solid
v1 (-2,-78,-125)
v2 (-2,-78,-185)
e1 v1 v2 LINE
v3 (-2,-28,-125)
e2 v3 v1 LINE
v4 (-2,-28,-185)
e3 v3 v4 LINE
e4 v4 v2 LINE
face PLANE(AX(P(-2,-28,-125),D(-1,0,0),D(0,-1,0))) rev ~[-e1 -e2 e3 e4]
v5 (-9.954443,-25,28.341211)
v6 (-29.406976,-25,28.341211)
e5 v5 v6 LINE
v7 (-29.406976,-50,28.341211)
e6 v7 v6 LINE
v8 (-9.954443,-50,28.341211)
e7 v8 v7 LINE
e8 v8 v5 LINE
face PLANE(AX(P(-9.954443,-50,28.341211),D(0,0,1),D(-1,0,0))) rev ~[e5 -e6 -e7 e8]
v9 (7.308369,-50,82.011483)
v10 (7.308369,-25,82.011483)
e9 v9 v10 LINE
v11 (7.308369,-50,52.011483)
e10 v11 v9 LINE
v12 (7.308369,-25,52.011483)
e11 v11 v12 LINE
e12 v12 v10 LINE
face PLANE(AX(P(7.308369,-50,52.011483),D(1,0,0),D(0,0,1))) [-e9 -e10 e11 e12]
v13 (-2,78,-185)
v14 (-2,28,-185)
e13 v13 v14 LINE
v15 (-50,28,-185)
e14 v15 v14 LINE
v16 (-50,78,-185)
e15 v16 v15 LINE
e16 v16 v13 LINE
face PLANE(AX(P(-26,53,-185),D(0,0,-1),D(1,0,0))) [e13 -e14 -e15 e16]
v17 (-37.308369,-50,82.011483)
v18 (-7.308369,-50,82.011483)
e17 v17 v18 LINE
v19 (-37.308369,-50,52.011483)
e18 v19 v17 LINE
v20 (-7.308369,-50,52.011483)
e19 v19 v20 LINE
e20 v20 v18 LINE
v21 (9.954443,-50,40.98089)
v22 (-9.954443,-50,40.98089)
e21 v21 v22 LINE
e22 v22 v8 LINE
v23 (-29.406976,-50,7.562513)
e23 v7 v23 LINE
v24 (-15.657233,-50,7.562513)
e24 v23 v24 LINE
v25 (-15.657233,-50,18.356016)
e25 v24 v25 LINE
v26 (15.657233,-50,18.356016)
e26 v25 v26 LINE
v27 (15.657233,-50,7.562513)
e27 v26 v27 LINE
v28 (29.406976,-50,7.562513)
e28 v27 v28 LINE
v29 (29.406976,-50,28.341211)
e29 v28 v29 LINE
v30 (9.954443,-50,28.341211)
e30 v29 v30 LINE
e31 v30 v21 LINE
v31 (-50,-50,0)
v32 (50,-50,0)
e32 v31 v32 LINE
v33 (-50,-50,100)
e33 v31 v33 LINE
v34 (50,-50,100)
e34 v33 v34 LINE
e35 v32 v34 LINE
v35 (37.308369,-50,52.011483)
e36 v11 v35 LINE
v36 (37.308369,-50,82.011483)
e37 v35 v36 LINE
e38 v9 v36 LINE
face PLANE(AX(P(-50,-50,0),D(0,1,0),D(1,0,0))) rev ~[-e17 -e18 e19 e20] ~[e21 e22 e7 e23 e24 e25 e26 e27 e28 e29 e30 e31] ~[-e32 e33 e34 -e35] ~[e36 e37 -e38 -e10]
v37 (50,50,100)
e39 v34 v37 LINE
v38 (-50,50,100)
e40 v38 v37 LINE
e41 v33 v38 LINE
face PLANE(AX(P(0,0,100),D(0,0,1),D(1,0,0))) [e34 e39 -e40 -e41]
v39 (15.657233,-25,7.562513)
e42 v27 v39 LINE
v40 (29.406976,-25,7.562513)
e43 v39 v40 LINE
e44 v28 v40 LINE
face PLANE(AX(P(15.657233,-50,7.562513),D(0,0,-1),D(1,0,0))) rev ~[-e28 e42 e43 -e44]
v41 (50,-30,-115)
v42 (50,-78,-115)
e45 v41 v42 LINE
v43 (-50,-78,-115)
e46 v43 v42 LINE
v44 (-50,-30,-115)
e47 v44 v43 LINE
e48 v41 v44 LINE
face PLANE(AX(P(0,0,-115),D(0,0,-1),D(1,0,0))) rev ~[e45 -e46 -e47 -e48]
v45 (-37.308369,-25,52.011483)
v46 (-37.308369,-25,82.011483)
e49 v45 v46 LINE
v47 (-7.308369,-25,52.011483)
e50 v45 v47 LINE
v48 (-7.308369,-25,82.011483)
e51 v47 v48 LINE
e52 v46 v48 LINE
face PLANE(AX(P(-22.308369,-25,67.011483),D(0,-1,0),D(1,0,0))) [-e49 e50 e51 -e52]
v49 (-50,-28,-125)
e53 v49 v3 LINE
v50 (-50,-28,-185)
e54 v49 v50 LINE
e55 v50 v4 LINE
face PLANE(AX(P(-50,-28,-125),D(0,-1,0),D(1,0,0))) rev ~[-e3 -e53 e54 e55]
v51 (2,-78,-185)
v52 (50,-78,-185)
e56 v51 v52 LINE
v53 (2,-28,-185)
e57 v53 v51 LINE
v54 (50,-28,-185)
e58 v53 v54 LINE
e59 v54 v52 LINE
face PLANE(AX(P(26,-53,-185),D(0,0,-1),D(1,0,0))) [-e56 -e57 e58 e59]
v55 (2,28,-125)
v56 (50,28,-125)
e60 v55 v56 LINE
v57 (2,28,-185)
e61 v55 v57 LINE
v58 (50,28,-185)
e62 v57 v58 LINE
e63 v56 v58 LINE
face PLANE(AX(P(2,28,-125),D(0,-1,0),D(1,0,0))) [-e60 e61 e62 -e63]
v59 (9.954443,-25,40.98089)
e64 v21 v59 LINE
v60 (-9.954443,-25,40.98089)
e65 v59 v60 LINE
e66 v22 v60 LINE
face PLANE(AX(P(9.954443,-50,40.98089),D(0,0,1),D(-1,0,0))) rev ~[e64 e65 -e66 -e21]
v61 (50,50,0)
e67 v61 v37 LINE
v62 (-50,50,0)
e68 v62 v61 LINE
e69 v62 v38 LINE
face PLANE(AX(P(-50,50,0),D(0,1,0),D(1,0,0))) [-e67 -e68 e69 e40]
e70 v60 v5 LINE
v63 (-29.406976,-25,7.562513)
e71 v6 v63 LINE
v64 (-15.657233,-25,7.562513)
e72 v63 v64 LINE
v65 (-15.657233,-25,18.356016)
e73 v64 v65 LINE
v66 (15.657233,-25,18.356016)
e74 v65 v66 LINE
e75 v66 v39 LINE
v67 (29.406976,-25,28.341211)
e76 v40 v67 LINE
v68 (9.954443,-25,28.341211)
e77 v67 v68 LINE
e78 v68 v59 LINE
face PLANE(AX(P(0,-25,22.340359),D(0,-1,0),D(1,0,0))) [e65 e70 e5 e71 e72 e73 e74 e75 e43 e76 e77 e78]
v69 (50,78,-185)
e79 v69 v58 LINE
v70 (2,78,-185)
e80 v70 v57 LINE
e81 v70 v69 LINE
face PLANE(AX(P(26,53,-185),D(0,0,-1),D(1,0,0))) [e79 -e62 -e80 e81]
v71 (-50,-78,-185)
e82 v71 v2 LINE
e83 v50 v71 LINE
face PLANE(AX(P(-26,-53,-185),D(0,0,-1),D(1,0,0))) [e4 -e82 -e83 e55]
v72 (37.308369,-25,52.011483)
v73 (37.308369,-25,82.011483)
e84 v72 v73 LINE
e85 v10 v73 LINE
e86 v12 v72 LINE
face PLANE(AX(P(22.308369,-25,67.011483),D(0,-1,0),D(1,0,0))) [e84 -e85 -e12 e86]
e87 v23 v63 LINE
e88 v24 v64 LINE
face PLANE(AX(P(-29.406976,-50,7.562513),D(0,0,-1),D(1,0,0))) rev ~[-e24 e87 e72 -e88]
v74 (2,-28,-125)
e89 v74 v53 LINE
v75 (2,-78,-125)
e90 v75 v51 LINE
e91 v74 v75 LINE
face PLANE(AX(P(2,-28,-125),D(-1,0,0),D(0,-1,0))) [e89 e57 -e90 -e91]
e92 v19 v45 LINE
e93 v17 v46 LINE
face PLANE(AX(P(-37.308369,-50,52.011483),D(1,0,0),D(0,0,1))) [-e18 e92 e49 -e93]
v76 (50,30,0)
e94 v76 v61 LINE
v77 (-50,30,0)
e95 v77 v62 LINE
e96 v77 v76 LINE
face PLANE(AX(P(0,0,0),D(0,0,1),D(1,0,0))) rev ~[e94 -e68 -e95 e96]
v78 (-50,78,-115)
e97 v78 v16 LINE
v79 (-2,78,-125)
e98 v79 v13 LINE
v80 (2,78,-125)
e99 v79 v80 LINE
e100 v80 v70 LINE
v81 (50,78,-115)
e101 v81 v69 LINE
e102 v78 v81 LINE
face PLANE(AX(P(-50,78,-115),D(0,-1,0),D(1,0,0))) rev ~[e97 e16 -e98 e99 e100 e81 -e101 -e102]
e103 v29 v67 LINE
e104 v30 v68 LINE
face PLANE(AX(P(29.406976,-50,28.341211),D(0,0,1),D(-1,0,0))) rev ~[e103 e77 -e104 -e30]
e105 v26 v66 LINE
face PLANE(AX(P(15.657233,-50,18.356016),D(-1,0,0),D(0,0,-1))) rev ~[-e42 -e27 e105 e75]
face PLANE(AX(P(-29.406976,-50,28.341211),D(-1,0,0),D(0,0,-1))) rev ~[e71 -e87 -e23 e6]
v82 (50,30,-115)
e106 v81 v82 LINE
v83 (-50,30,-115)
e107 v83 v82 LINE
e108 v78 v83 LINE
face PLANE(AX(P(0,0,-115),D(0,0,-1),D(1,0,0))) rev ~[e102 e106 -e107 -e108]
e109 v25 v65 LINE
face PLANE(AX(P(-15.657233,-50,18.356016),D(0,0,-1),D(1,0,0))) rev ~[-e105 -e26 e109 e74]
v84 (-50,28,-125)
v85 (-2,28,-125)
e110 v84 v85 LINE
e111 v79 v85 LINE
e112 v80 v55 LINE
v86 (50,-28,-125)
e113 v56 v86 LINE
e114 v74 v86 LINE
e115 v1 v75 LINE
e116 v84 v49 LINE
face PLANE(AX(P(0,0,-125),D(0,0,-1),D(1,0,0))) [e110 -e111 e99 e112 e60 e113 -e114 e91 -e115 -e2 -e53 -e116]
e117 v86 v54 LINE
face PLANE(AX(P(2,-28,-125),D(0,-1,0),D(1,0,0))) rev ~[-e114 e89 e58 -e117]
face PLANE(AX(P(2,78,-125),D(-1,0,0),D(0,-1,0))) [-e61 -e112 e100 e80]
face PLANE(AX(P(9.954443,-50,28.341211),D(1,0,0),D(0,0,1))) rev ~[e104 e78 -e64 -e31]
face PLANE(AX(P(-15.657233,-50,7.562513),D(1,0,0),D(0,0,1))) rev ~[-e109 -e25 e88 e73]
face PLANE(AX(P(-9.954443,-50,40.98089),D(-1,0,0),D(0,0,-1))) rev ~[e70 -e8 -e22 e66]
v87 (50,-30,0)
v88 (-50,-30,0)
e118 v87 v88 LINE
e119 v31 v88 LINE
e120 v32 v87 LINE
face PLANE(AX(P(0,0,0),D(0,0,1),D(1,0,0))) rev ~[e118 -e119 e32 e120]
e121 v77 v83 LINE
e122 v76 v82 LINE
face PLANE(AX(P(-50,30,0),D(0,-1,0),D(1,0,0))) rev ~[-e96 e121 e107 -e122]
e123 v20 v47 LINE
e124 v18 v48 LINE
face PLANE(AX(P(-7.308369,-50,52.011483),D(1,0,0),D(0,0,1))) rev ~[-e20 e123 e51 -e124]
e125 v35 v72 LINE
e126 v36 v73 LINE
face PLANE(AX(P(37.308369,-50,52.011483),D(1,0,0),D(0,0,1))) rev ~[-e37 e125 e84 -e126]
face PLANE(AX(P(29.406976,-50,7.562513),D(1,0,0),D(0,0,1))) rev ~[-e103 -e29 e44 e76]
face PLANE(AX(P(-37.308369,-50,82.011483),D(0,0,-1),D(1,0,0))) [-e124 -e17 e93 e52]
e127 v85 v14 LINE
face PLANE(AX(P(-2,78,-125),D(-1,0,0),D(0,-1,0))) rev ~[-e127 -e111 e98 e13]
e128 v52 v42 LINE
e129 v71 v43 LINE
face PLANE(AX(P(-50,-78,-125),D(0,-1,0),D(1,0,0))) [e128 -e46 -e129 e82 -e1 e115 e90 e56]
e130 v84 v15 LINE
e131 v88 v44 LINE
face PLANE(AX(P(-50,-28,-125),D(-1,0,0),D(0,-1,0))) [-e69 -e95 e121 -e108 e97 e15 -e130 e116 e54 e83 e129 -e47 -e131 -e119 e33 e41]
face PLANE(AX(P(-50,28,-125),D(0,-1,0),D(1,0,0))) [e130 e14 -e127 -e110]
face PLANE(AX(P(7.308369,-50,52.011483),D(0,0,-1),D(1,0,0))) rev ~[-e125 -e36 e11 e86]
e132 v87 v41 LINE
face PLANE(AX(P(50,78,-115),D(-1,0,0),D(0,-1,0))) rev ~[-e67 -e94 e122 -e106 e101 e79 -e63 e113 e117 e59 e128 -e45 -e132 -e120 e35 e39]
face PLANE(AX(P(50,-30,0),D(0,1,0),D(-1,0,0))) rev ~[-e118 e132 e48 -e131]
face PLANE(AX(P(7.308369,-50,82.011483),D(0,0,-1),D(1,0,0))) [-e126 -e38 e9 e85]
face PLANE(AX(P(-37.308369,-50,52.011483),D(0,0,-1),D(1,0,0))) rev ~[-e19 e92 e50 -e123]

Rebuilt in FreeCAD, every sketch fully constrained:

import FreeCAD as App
import Part
import Sketcher
from FreeCAD import Vector

doc = App.newDocument("Part")
body = doc.addObject("PartDesign::Body", "Body")

sketch1 = body.newObject("Sketcher::SketchObject", "Sketch")
sketch1.AttachmentSupport = (doc.getObject("XY_Plane"), [""])
sketch1.MapMode = "FlatFace"
sketch1.addGeometry(Part.LineSegment(Vector(-50, 50, 0), Vector(-50, -50, 0)), False)
sketch1.addGeometry(Part.LineSegment(Vector(-50, -50, 0), Vector(50, -50, 0)), False)
sketch1.addGeometry(Part.LineSegment(Vector(50, -50, 0), Vector(50, 50, 0)), False)
sketch1.addGeometry(Part.LineSegment(Vector(50, 50, 0), Vector(-50, 50, 0)), False)
sketch1.addConstraint(Sketcher.Constraint("Coincident", 0, 2, 1, 1))
sketch1.addConstraint(Sketcher.Constraint("Coincident", 1, 2, 2, 1))
sketch1.addConstraint(Sketcher.Constraint("Coincident", 2, 2, 3, 1))
sketch1.addConstraint(Sketcher.Constraint("Coincident", 3, 2, 0, 1))
sketch1.addConstraint(Sketcher.Constraint("Vertical", 0))
sketch1.addConstraint(Sketcher.Constraint("Horizontal", 1))
sketch1.addConstraint(Sketcher.Constraint("Vertical", 2))
sketch1.addConstraint(Sketcher.Constraint("Horizontal", 3))
sketch1.addConstraint(Sketcher.Constraint("Symmetric", 0, 2, 2, 2, -1, 1))
sketch1.addConstraint(Sketcher.Constraint("Equal", 3, 0))
sketch1.addConstraint(Sketcher.Constraint("DistanceX", 1, 1, 1, 2, 100.0))
pad1 = body.newObject("PartDesign::Pad", "Pad")
pad1.Profile = sketch1
pad1.Length = 100

sketch2 = body.newObject("Sketcher::SketchObject", "Sketch001")
sketch2.AttachmentSupport = (doc.getObject("XZ_Plane"), [""])
sketch2.MapMode = "FlatFace"
sketch2.AttachmentOffset = App.Placement(Vector(0, 0, 50), App.Rotation())
sketch2.addGeometry(Part.LineSegment(Vector(-37, 82, 0), Vector(-37, 52, 0)), False)
sketch2.addGeometry(Part.LineSegment(Vector(-37, 52, 0), Vector(-7, 52, 0)), False)
sketch2.addGeometry(Part.LineSegment(Vector(-7, 52, 0), Vector(-7, 82, 0)), False)
sketch2.addGeometry(Part.LineSegment(Vector(-7, 82, 0), Vector(-37, 82, 0)), False)
sketch2.addGeometry(Part.LineSegment(Vector(7, 82, 0), Vector(7, 52, 0)), False)
sketch2.addGeometry(Part.LineSegment(Vector(7, 52, 0), Vector(37, 52, 0)), False)
sketch2.addGeometry(Part.LineSegment(Vector(37, 52, 0), Vector(37, 82, 0)), False)
sketch2.addGeometry(Part.LineSegment(Vector(37, 82, 0), Vector(7, 82, 0)), False)
sketch2.addGeometry(Part.LineSegment(Vector(10, 41, 0), Vector(-10, 41, 0)), False)
sketch2.addGeometry(Part.LineSegment(Vector(-10, 41, 0), Vector(-10, 28, 0)), False)
sketch2.addGeometry(Part.LineSegment(Vector(-10, 28, 0), Vector(-29, 28, 0)), False)
sketch2.addGeometry(Part.LineSegment(Vector(-29, 28, 0), Vector(-29, 8, 0)), False)
sketch2.addGeometry(Part.LineSegment(Vector(-29, 8, 0), Vector(-16, 8, 0)), False)
sketch2.addGeometry(Part.LineSegment(Vector(-16, 8, 0), Vector(-16, 18, 0)), False)
sketch2.addGeometry(Part.LineSegment(Vector(-16, 18, 0), Vector(16, 18, 0)), False)
sketch2.addGeometry(Part.LineSegment(Vector(16, 18, 0), Vector(16, 8, 0)), False)
sketch2.addGeometry(Part.LineSegment(Vector(16, 8, 0), Vector(29, 8, 0)), False)
sketch2.addGeometry(Part.LineSegment(Vector(29, 8, 0), Vector(29, 28, 0)), False)
sketch2.addGeometry(Part.LineSegment(Vector(29, 28, 0), Vector(10, 28, 0)), False)
sketch2.addGeometry(Part.LineSegment(Vector(10, 28, 0), Vector(10, 41, 0)), False)
sketch2.addConstraint(Sketcher.Constraint("Coincident", 0, 2, 1, 1))
sketch2.addConstraint(Sketcher.Constraint("Coincident", 1, 2, 2, 1))
sketch2.addConstraint(Sketcher.Constraint("Coincident", 2, 2, 3, 1))
sketch2.addConstraint(Sketcher.Constraint("Coincident", 3, 2, 0, 1))
sketch2.addConstraint(Sketcher.Constraint("Coincident", 4, 2, 5, 1))
sketch2.addConstraint(Sketcher.Constraint("Coincident", 5, 2, 6, 1))
sketch2.addConstraint(Sketcher.Constraint("Coincident", 6, 2, 7, 1))
sketch2.addConstraint(Sketcher.Constraint("Coincident", 7, 2, 4, 1))
sketch2.addConstraint(Sketcher.Constraint("Coincident", 8, 2, 9, 1))
sketch2.addConstraint(Sketcher.Constraint("Coincident", 9, 2, 10, 1))
sketch2.addConstraint(Sketcher.Constraint("Coincident", 10, 2, 11, 1))
sketch2.addConstraint(Sketcher.Constraint("Coincident", 11, 2, 12, 1))
sketch2.addConstraint(Sketcher.Constraint("Coincident", 12, 2, 13, 1))
sketch2.addConstraint(Sketcher.Constraint("Coincident", 13, 2, 14, 1))
sketch2.addConstraint(Sketcher.Constraint("Coincident", 14, 2, 15, 1))
sketch2.addConstraint(Sketcher.Constraint("Coincident", 15, 2, 16, 1))
sketch2.addConstraint(Sketcher.Constraint("Coincident", 16, 2, 17, 1))
sketch2.addConstraint(Sketcher.Constraint("Coincident", 17, 2, 18, 1))
sketch2.addConstraint(Sketcher.Constraint("Coincident", 18, 2, 19, 1))
sketch2.addConstraint(Sketcher.Constraint("Coincident", 19, 2, 8, 1))
sketch2.addConstraint(Sketcher.Constraint("Vertical", 0))
sketch2.addConstraint(Sketcher.Constraint("Horizontal", 1))
sketch2.addConstraint(Sketcher.Constraint("Vertical", 2))
sketch2.addConstraint(Sketcher.Constraint("Horizontal", 3))
sketch2.addConstraint(Sketcher.Constraint("Vertical", 4))
sketch2.addConstraint(Sketcher.Constraint("Horizontal", 5))
sketch2.addConstraint(Sketcher.Constraint("Vertical", 6))
sketch2.addConstraint(Sketcher.Constraint("Horizontal", 7))
sketch2.addConstraint(Sketcher.Constraint("Horizontal", 8))
sketch2.addConstraint(Sketcher.Constraint("Vertical", 9))
sketch2.addConstraint(Sketcher.Constraint("Horizontal", 10))
sketch2.addConstraint(Sketcher.Constraint("Vertical", 11))
sketch2.addConstraint(Sketcher.Constraint("Horizontal", 12))
sketch2.addConstraint(Sketcher.Constraint("Vertical", 13))
sketch2.addConstraint(Sketcher.Constraint("Horizontal", 14))
sketch2.addConstraint(Sketcher.Constraint("Vertical", 15))
sketch2.addConstraint(Sketcher.Constraint("Horizontal", 16))
sketch2.addConstraint(Sketcher.Constraint("Vertical", 17))
sketch2.addConstraint(Sketcher.Constraint("Horizontal", 18))
sketch2.addConstraint(Sketcher.Constraint("Vertical", 19))
sketch2.addConstraint(Sketcher.Constraint("Symmetric", 1, 2, 4, 2, -2))
sketch2.addConstraint(Sketcher.Constraint("Symmetric", 3, 2, 6, 2, -2))
sketch2.addConstraint(Sketcher.Constraint("Symmetric", 12, 2, 15, 2, -2))
sketch2.addConstraint(Sketcher.Constraint("Symmetric", 10, 2, 17, 2, -2))
sketch2.addConstraint(Sketcher.Constraint("Equal", 10, 18))
sketch2.addConstraint(Sketcher.Constraint("Equal", 7, 0))
sketch2.addConstraint(Sketcher.Constraint("DistanceX", 1, 1, 1, 2, 30.0))
sketch2.addConstraint(Sketcher.Constraint("DistanceY", 11, 2, 11, 1, 20.778698))
sketch2.addConstraint(Sketcher.Constraint("DistanceY", 9, 2, 9, 1, 12.639679))
sketch2.addConstraint(Sketcher.Constraint("DistanceX", 8, 2, 8, 1, 19.908886))
sketch2.addConstraint(Sketcher.Constraint("DistanceX", 10, 2, 10, 1, 19.452533))
sketch2.addConstraint(Sketcher.Constraint("DistanceX", 12, 1, 12, 2, 13.749743))
sketch2.addConstraint(Sketcher.Constraint("DistanceY", 13, 1, 13, 2, 10.793503))
sketch2.addConstraint(Sketcher.Constraint("DistanceX", 0, 2, -1, 1, 37.308369))
sketch2.addConstraint(Sketcher.Constraint("DistanceY", -1, 1, 8, 2, 40.98089))
sketch2.addConstraint(Sketcher.Constraint("DistanceY", 9, 2, 1, 2, 23.670272))
pocket1 = body.newObject("PartDesign::Pocket", "Pocket")
pocket1.Profile = sketch2
pocket1.Length = 25

sketch3 = body.newObject("Sketcher::SketchObject", "Sketch002")
sketch3.AttachmentSupport = (doc.getObject("XY_Plane"), [""])
sketch3.MapMode = "FlatFace"
sketch3.addGeometry(Part.LineSegment(Vector(50, 30, 0), Vector(50, -30, 0)), False)
sketch3.addGeometry(Part.LineSegment(Vector(50, -30, 0), Vector(-50, -30, 0)), False)
sketch3.addGeometry(Part.LineSegment(Vector(-50, -30, 0), Vector(-50, 30, 0)), False)
sketch3.addGeometry(Part.LineSegment(Vector(-50, 30, 0), Vector(50, 30, 0)), False)
sketch3.addConstraint(Sketcher.Constraint("Coincident", 0, 2, 1, 1))
sketch3.addConstraint(Sketcher.Constraint("Coincident", 1, 2, 2, 1))
sketch3.addConstraint(Sketcher.Constraint("Coincident", 2, 2, 3, 1))
sketch3.addConstraint(Sketcher.Constraint("Coincident", 3, 2, 0, 1))
sketch3.addConstraint(Sketcher.Constraint("Vertical", 0))
sketch3.addConstraint(Sketcher.Constraint("Horizontal", 1))
sketch3.addConstraint(Sketcher.Constraint("Vertical", 2))
sketch3.addConstraint(Sketcher.Constraint("Horizontal", 3))
sketch3.addConstraint(Sketcher.Constraint("Symmetric", 0, 2, 2, 2, -1, 1))
sketch3.addConstraint(Sketcher.Constraint("DistanceX", 1, 2, 1, 1, 100.0))
sketch3.addConstraint(Sketcher.Constraint("DistanceY", 0, 2, 0, 1, 60.0))
pad2 = body.newObject("PartDesign::Pad", "Pad001")
pad2.Profile = sketch3
pad2.Length = 115
pad2.Reversed = True

sketch4 = body.newObject("Sketcher::SketchObject", "Sketch003")
sketch4.AttachmentSupport = (doc.getObject("XY_Plane"), [""])
sketch4.MapMode = "FlatFace"
sketch4.AttachmentOffset = App.Placement(Vector(0, 0, -115), App.Rotation())
sketch4.addGeometry(Part.LineSegment(Vector(-50, -78, 0), Vector(-50, 78, 0)), False)
sketch4.addGeometry(Part.LineSegment(Vector(-50, 78, 0), Vector(50, 78, 0)), False)
sketch4.addGeometry(Part.LineSegment(Vector(50, 78, 0), Vector(50, -78, 0)), False)
sketch4.addGeometry(Part.LineSegment(Vector(50, -78, 0), Vector(-50, -78, 0)), False)
sketch4.addConstraint(Sketcher.Constraint("Coincident", 0, 2, 1, 1))
sketch4.addConstraint(Sketcher.Constraint("Coincident", 1, 2, 2, 1))
sketch4.addConstraint(Sketcher.Constraint("Coincident", 2, 2, 3, 1))
sketch4.addConstraint(Sketcher.Constraint("Coincident", 3, 2, 0, 1))
sketch4.addConstraint(Sketcher.Constraint("Vertical", 0))
sketch4.addConstraint(Sketcher.Constraint("Horizontal", 1))
sketch4.addConstraint(Sketcher.Constraint("Vertical", 2))
sketch4.addConstraint(Sketcher.Constraint("Horizontal", 3))
sketch4.addConstraint(Sketcher.Constraint("Symmetric", 0, 2, 2, 2, -1, 1))
sketch4.addConstraint(Sketcher.Constraint("DistanceX", 1, 1, 1, 2, 100.0))
sketch4.addConstraint(Sketcher.Constraint("DistanceY", 0, 1, 0, 2, 156.0))
pad3 = body.newObject("PartDesign::Pad", "Pad002")
pad3.Profile = sketch4
pad3.Length = 10
pad3.Reversed = True

sketch5 = body.newObject("Sketcher::SketchObject", "Sketch004")
sketch5.AttachmentSupport = (doc.getObject("XY_Plane"), [""])
sketch5.MapMode = "FlatFace"
sketch5.AttachmentOffset = App.Placement(Vector(0, 0, -125), App.Rotation())
sketch5.addGeometry(Part.LineSegment(Vector(-50, -78, 0), Vector(-50, -28, 0)), False)
sketch5.addGeometry(Part.LineSegment(Vector(-50, -28, 0), Vector(-2, -28, 0)), False)
sketch5.addGeometry(Part.LineSegment(Vector(-2, -28, 0), Vector(-2, -78, 0)), False)
sketch5.addGeometry(Part.LineSegment(Vector(-2, -78, 0), Vector(-50, -78, 0)), False)
sketch5.addGeometry(Part.LineSegment(Vector(2, -78, 0), Vector(2, -28, 0)), False)
sketch5.addGeometry(Part.LineSegment(Vector(2, -28, 0), Vector(50, -28, 0)), False)
sketch5.addGeometry(Part.LineSegment(Vector(50, -28, 0), Vector(50, -78, 0)), False)
sketch5.addGeometry(Part.LineSegment(Vector(50, -78, 0), Vector(2, -78, 0)), False)
sketch5.addGeometry(Part.LineSegment(Vector(-50, 28, 0), Vector(-50, 78, 0)), False)
sketch5.addGeometry(Part.LineSegment(Vector(-50, 78, 0), Vector(-2, 78, 0)), False)
sketch5.addGeometry(Part.LineSegment(Vector(-2, 78, 0), Vector(-2, 28, 0)), False)
sketch5.addGeometry(Part.LineSegment(Vector(-2, 28, 0), Vector(-50, 28, 0)), False)
sketch5.addGeometry(Part.LineSegment(Vector(2, 28, 0), Vector(2, 78, 0)), False)
sketch5.addGeometry(Part.LineSegment(Vector(2, 78, 0), Vector(50, 78, 0)), False)
sketch5.addGeometry(Part.LineSegment(Vector(50, 78, 0), Vector(50, 28, 0)), False)
sketch5.addGeometry(Part.LineSegment(Vector(50, 28, 0), Vector(2, 28, 0)), False)
sketch5.addConstraint(Sketcher.Constraint("Coincident", 0, 2, 1, 1))
sketch5.addConstraint(Sketcher.Constraint("Coincident", 1, 2, 2, 1))
sketch5.addConstraint(Sketcher.Constraint("Coincident", 2, 2, 3, 1))
sketch5.addConstraint(Sketcher.Constraint("Coincident", 3, 2, 0, 1))
sketch5.addConstraint(Sketcher.Constraint("Coincident", 4, 2, 5, 1))
sketch5.addConstraint(Sketcher.Constraint("Coincident", 5, 2, 6, 1))
sketch5.addConstraint(Sketcher.Constraint("Coincident", 6, 2, 7, 1))
sketch5.addConstraint(Sketcher.Constraint("Coincident", 7, 2, 4, 1))
sketch5.addConstraint(Sketcher.Constraint("Coincident", 8, 2, 9, 1))
sketch5.addConstraint(Sketcher.Constraint("Coincident", 9, 2, 10, 1))
sketch5.addConstraint(Sketcher.Constraint("Coincident", 10, 2, 11, 1))
sketch5.addConstraint(Sketcher.Constraint("Coincident", 11, 2, 8, 1))
sketch5.addConstraint(Sketcher.Constraint("Coincident", 12, 2, 13, 1))
sketch5.addConstraint(Sketcher.Constraint("Coincident", 13, 2, 14, 1))
sketch5.addConstraint(Sketcher.Constraint("Coincident", 14, 2, 15, 1))
sketch5.addConstraint(Sketcher.Constraint("Coincident", 15, 2, 12, 1))
sketch5.addConstraint(Sketcher.Constraint("Vertical", 0))
sketch5.addConstraint(Sketcher.Constraint("Horizontal", 1))
sketch5.addConstraint(Sketcher.Constraint("Vertical", 2))
sketch5.addConstraint(Sketcher.Constraint("Horizontal", 3))
sketch5.addConstraint(Sketcher.Constraint("Vertical", 4))
sketch5.addConstraint(Sketcher.Constraint("Horizontal", 5))
sketch5.addConstraint(Sketcher.Constraint("Vertical", 6))
sketch5.addConstraint(Sketcher.Constraint("Horizontal", 7))
sketch5.addConstraint(Sketcher.Constraint("Vertical", 8))
sketch5.addConstraint(Sketcher.Constraint("Horizontal", 9))
sketch5.addConstraint(Sketcher.Constraint("Vertical", 10))
sketch5.addConstraint(Sketcher.Constraint("Horizontal", 11))
sketch5.addConstraint(Sketcher.Constraint("Vertical", 12))
sketch5.addConstraint(Sketcher.Constraint("Horizontal", 13))
sketch5.addConstraint(Sketcher.Constraint("Vertical", 14))
sketch5.addConstraint(Sketcher.Constraint("Horizontal", 15))
sketch5.addConstraint(Sketcher.Constraint("Symmetric", 6, 2, 8, 2, -1, 1))
sketch5.addConstraint(Sketcher.Constraint("Symmetric", 4, 2, 10, 2, -1, 1))
sketch5.addConstraint(Sketcher.Constraint("Symmetric", 2, 2, 12, 2, -1, 1))
sketch5.addConstraint(Sketcher.Constraint("Symmetric", 0, 2, 14, 2, -1, 1))
sketch5.addConstraint(Sketcher.Constraint("Symmetric", 1, 2, 4, 2, -2))
sketch5.addConstraint(Sketcher.Constraint("Symmetric", 3, 2, 6, 2, -2))
sketch5.addConstraint(Sketcher.Constraint("DistanceX", 1, 1, 1, 2, 48.0))
sketch5.addConstraint(Sketcher.Constraint("DistanceY", 0, 1, 0, 2, 50.0))
sketch5.addConstraint(Sketcher.Constraint("DistanceX", 0, 2, -1, 1, 50.0))
sketch5.addConstraint(Sketcher.Constraint("DistanceY", 0, 2, -1, 1, 28.0))
pad4 = body.newObject("PartDesign::Pad", "Pad003")
pad4.Profile = sketch5
pad4.Length = 60
pad4.Reversed = True

doc.recompute()
